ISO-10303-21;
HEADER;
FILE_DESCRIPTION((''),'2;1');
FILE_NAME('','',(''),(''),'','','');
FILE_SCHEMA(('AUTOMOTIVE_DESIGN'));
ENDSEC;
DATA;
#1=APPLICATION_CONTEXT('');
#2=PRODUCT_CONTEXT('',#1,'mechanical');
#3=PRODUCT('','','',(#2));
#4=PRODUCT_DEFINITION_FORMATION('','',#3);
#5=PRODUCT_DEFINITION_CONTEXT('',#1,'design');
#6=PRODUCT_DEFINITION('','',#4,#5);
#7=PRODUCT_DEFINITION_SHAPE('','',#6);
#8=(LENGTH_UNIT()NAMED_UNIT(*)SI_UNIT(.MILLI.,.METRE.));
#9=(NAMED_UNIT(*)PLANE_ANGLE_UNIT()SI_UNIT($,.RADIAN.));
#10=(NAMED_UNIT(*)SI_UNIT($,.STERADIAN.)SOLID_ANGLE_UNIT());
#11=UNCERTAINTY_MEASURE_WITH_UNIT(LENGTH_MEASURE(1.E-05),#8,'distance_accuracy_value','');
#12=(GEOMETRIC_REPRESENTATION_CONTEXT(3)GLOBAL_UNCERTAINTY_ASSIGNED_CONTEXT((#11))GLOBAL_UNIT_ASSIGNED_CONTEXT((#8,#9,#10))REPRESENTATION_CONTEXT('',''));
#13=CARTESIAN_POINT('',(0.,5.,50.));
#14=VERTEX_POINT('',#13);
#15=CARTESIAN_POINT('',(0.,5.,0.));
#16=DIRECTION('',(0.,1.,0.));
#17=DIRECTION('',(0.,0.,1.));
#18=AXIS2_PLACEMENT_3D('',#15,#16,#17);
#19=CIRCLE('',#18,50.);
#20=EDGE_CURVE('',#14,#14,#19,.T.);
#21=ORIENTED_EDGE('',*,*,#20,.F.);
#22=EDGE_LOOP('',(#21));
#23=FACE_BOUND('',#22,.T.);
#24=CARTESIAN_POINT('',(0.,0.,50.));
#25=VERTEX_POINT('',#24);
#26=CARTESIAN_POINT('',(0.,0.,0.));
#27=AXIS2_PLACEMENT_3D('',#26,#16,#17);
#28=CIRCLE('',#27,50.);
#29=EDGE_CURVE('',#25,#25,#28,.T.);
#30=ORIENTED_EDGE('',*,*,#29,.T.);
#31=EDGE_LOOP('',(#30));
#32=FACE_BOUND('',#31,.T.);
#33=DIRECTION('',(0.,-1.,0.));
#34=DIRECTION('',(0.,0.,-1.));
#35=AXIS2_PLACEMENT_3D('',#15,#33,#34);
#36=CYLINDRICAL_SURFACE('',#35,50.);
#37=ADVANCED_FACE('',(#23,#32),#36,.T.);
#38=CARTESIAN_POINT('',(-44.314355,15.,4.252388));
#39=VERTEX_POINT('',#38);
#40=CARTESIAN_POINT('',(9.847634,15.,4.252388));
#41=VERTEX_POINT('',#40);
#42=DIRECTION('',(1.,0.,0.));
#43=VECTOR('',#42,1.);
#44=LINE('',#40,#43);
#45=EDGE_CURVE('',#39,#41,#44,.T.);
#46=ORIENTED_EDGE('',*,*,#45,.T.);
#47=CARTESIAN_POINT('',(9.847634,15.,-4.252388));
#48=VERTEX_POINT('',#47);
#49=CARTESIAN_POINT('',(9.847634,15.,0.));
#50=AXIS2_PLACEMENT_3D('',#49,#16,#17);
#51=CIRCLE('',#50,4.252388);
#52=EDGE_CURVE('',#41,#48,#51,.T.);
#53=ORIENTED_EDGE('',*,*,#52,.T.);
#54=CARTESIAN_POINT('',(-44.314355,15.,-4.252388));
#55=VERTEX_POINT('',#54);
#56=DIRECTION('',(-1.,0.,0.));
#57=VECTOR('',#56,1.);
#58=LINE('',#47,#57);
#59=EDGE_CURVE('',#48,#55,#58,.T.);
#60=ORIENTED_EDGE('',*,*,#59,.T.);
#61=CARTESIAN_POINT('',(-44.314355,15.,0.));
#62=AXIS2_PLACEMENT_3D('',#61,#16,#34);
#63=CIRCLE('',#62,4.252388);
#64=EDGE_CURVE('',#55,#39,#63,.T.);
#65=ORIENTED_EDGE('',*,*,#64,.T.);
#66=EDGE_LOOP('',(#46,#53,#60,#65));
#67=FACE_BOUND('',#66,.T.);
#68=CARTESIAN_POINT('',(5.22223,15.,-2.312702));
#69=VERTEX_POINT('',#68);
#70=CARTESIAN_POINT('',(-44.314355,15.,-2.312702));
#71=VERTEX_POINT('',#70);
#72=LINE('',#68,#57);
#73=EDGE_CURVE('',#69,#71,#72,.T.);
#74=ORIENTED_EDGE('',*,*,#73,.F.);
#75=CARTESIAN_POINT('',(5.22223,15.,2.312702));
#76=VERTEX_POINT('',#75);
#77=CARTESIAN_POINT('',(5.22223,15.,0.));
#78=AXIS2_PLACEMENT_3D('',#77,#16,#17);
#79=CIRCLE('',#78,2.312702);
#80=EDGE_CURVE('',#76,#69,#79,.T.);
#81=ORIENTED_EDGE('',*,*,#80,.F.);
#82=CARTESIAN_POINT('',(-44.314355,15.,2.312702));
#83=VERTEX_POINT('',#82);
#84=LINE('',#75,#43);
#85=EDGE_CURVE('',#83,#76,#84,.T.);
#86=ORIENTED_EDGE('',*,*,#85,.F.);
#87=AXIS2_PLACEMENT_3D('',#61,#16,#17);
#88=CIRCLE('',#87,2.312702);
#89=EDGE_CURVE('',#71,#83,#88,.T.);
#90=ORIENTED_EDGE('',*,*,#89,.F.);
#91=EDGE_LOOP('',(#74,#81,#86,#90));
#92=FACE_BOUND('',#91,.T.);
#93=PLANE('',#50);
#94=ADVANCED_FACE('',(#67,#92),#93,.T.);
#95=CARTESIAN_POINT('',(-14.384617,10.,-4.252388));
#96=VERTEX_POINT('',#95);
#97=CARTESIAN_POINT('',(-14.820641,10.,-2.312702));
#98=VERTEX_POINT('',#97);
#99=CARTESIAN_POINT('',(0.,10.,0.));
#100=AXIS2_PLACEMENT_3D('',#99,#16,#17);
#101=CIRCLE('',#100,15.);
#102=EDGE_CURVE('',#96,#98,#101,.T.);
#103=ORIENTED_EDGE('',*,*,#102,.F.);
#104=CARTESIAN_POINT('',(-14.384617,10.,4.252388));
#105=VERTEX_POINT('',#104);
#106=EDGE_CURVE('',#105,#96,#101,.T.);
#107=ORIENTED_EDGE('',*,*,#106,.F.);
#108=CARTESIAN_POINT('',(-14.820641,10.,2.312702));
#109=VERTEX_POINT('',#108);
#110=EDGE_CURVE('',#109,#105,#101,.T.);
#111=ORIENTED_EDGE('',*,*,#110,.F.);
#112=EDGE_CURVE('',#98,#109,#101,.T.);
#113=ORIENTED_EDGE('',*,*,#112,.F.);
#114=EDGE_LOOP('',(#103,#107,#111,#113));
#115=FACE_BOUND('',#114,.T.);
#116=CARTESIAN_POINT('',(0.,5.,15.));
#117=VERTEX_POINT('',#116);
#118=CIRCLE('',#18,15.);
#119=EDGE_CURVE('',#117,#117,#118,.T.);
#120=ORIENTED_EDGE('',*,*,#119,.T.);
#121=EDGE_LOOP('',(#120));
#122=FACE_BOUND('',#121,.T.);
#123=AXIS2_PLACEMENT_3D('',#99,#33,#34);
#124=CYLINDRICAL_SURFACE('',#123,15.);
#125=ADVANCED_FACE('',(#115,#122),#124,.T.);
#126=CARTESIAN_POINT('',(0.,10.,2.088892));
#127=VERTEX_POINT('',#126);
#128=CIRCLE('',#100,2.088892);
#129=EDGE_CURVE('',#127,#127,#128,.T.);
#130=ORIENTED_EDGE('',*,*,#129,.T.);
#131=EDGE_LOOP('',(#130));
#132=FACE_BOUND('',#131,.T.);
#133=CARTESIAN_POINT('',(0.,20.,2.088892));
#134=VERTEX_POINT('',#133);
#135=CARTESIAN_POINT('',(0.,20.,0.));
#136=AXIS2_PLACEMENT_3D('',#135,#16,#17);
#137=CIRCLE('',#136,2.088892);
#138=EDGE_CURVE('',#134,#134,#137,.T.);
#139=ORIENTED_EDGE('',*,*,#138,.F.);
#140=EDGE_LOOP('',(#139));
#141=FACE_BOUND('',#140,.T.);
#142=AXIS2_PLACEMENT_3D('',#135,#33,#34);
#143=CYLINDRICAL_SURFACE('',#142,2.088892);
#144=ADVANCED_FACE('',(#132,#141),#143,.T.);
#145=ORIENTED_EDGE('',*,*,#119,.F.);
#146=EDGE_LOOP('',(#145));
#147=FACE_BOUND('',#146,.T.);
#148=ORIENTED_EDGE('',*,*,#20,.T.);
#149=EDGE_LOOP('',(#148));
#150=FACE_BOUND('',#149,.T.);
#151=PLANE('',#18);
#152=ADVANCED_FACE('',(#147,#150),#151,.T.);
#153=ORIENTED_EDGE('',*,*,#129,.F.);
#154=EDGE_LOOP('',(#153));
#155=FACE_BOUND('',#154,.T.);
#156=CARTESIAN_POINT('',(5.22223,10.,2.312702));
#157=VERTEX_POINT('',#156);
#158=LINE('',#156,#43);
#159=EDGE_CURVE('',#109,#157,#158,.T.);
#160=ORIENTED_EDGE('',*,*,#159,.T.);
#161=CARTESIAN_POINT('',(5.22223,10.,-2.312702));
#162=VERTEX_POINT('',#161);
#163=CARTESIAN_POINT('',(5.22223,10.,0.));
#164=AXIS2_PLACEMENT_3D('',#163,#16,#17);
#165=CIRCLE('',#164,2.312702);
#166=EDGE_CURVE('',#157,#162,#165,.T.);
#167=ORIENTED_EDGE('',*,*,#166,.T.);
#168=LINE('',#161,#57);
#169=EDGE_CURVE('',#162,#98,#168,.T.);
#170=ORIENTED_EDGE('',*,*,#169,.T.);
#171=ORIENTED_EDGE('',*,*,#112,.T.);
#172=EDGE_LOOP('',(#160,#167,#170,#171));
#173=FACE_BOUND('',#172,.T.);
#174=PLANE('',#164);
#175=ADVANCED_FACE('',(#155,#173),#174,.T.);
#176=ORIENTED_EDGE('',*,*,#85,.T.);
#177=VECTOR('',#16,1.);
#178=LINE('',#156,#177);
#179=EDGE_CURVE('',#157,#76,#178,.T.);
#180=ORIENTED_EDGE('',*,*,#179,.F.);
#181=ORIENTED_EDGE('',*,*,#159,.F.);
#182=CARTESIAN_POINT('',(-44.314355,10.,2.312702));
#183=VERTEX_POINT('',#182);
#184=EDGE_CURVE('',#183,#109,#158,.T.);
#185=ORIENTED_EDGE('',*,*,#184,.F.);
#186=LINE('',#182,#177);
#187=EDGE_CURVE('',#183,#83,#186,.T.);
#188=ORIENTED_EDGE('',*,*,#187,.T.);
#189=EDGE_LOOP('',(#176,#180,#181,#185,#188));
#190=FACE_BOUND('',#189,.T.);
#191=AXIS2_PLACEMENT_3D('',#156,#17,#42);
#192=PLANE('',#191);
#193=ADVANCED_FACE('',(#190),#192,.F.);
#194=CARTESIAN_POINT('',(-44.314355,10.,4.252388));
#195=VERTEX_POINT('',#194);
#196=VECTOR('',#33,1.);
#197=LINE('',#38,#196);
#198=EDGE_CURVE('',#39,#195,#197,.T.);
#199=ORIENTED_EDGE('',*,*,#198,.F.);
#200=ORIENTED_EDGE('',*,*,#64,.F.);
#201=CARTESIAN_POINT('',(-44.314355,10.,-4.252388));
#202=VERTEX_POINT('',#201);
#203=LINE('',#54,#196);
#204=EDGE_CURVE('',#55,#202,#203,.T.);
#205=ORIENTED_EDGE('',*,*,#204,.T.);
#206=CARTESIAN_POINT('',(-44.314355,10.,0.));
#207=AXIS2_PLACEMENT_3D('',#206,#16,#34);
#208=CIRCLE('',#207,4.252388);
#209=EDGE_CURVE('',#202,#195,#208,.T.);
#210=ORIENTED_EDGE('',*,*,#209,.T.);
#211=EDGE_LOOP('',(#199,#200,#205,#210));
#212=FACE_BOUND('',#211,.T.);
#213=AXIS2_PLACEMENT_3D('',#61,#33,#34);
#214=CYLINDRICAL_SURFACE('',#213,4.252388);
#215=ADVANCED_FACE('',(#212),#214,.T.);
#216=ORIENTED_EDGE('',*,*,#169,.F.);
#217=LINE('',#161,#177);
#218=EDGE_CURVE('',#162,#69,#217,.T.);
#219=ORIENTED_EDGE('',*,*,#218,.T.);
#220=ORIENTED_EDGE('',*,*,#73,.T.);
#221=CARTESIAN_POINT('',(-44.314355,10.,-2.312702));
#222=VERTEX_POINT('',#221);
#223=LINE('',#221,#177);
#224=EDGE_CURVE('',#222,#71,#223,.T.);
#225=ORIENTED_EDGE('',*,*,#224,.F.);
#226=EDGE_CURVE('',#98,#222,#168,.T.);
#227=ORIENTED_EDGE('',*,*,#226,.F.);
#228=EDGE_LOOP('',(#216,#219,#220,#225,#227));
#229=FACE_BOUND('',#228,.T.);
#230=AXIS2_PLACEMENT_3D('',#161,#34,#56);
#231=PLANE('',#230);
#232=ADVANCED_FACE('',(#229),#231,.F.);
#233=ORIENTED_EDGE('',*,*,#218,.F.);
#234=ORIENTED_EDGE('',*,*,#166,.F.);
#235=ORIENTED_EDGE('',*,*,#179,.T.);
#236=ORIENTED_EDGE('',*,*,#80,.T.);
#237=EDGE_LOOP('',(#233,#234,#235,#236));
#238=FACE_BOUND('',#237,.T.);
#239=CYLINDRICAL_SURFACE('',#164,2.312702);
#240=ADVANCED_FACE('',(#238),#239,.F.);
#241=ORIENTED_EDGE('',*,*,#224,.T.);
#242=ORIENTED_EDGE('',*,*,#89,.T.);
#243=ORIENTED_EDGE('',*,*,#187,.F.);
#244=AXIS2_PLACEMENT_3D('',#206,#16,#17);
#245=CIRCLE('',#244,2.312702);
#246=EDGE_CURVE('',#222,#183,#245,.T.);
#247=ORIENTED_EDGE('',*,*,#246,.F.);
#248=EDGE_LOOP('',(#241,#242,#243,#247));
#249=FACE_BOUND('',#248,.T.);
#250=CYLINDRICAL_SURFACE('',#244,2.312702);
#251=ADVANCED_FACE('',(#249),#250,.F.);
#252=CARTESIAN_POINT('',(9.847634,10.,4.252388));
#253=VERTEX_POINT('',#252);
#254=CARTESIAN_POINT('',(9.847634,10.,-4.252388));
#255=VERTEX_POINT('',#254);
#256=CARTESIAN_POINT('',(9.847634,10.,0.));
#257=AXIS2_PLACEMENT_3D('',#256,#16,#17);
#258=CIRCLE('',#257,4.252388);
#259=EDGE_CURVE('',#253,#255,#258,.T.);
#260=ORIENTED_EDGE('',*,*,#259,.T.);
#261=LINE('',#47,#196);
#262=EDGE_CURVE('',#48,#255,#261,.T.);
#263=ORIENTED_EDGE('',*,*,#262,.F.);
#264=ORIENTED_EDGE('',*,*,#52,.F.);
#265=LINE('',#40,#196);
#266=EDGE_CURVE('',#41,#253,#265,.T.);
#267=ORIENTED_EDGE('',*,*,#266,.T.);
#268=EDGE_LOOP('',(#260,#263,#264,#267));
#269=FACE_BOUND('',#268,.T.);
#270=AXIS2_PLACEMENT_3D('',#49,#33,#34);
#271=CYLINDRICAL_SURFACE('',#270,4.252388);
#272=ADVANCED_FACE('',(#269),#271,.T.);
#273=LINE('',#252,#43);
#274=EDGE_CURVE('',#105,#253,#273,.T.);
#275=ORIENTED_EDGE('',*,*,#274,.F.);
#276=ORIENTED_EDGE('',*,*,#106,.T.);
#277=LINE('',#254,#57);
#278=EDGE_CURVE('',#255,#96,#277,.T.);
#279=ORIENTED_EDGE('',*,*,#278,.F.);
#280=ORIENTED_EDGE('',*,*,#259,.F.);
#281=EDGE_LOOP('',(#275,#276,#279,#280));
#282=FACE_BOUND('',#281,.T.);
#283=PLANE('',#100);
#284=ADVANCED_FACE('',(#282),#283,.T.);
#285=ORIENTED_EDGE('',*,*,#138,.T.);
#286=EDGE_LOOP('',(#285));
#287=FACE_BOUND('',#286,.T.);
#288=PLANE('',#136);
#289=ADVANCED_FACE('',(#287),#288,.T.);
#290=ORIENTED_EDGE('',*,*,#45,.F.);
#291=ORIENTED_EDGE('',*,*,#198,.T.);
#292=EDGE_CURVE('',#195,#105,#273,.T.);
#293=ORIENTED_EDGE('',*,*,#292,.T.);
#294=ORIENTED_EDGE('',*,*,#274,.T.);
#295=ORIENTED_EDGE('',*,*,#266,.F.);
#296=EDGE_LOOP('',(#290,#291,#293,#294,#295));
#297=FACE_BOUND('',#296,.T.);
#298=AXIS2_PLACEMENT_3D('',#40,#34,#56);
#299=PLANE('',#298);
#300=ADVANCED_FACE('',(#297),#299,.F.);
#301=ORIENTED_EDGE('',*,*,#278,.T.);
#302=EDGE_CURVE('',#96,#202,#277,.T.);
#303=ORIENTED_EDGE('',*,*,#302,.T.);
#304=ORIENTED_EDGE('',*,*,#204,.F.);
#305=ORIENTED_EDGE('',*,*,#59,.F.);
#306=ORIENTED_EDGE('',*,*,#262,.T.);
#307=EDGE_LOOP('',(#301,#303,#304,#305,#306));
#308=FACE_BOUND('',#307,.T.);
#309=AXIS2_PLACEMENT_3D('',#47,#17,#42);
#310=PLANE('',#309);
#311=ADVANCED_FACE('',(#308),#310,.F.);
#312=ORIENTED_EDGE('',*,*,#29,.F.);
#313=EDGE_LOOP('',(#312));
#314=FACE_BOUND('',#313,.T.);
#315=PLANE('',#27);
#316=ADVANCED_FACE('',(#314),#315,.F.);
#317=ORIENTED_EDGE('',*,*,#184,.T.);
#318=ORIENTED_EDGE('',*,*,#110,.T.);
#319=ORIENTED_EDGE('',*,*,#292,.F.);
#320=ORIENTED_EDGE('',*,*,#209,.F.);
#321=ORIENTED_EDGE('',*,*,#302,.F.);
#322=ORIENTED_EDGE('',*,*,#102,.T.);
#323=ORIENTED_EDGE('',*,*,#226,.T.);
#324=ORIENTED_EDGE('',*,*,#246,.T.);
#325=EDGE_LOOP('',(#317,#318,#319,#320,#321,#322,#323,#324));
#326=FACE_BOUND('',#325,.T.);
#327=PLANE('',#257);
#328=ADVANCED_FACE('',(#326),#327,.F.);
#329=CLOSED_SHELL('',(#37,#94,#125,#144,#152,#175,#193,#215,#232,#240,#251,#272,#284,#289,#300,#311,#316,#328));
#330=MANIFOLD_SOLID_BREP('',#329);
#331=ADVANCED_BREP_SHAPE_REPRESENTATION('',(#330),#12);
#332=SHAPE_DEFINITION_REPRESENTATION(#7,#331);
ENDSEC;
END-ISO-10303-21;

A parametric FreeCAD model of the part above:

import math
import FreeCAD as App
import Part
import Sketcher
from FreeCAD import Vector
Q = App.Units.Quantity

doc = App.newDocument("Part")
params = doc.addObject("Spreadsheet::Sheet", "Params")
for row, (alias, value) in enumerate([
    ("sketch1_diameter", "100 mm"),
    ("pad1_length", "5 mm"),
    ("sketch2_diameter", "30 mm"),
    ("pad2_length", "5 mm"),
    ("pad3_length", "5 mm"),
    ("pocket1_length", "5 mm"),
    ("pad4_length", "10 mm"),
], start=1):
    params.set(f"A{row}", alias)
    params.set(f"B{row}", "=" + value)
    params.setAlias(f"B{row}", alias)

body = doc.addObject("PartDesign::Body", "Body")

# Sketch on XZ plane
sketch1 = body.newObject("Sketcher::SketchObject", "Sketch")
sketch1.AttachmentSupport = (doc.getObject("XZ_Plane"), [""])
sketch1.MapMode = "FlatFace"
sketch1.addGeometry(Part.Circle(Vector(0, 0, 0), Vector(0, 0, 1), 50), False)
sketch1.addConstraint(Sketcher.Constraint("Coincident", 0, 3, -1, 1))
sketch1.addConstraint(Sketcher.Constraint("Diameter", 0, Q("100 mm")))
sketch1.setExpression("Constraints[1]", "Params.sketch1_diameter")
pad1 = body.newObject("PartDesign::Pad", "Pad")
pad1.Profile = sketch1
pad1.setExpression("Length", "Params.pad1_length")
pad1.Reversed = True

# Sketch on XZ plane
sketch2 = body.newObject("Sketcher::SketchObject", "Sketch001")
sketch2.AttachmentSupport = (doc.getObject("XZ_Plane"), [""])
sketch2.MapMode = "FlatFace"
sketch2.AttachmentOffset = App.Placement(Vector(0, 0, -5), App.Rotation())
sketch2.addGeometry(Part.Circle(Vector(0, 0, 0), Vector(0, 0, 1), 15), False)
sketch2.addConstraint(Sketcher.Constraint("Coincident", 0, 3, -1, 1))
sketch2.addConstraint(Sketcher.Constraint("Diameter", 0, Q("30 mm")))
sketch2.setExpression("Constraints[1]", "Params.sketch2_diameter")
pad2 = body.newObject("PartDesign::Pad", "Pad001")
pad2.Profile = sketch2
pad2.setExpression("Length", "Params.pad2_length")
pad2.Reversed = True

# Sketch on XZ plane
sketch3 = body.newObject("Sketcher::SketchObject", "Sketch002")
sketch3.AttachmentSupport = (doc.getObject("XZ_Plane"), [""])
sketch3.MapMode = "FlatFace"
sketch3.AttachmentOffset = App.Placement(Vector(0, 0, -10), App.Rotation())
sketch3.addGeometry(Part.LineSegment(Vector(-44.314355, 4.252388, 0), Vector(9.847634, 4.252388, 0)), False)
sketch3.addGeometry(Part.ArcOfCircle(Part.Circle(Vector(9.847634, 0, 0), Vector(0, 0, 1), 4.252388), math.radians(-90), math.radians(90)), False)
sketch3.addGeometry(Part.LineSegment(Vector(9.847634, -4.252388, 0), Vector(-44.314355, -4.252388, 0)), False)
sketch3.addGeometry(Part.ArcOfCircle(Part.Circle(Vector(-44.314355, 0, 0), Vector(0, 0, 1), 4.252388), math.radians(90), math.radians(270)), False)
sketch3.addConstraint(Sketcher.Constraint("Tangent", 0, 2, 1, 2))
sketch3.addConstraint(Sketcher.Constraint("Tangent", 1, 1, 2, 1))
sketch3.addConstraint(Sketcher.Constraint("Tangent", 2, 2, 3, 2))
sketch3.addConstraint(Sketcher.Constraint("Tangent", 3, 1, 0, 1))
sketch3.addConstraint(Sketcher.Constraint("Horizontal", 0))
sketch3.addConstraint(Sketcher.Constraint("Horizontal", 2))
sketch3.addConstraint(Sketcher.Constraint("PointOnObject", 1, 3, -1))
sketch3.addConstraint(Sketcher.Constraint("Radius", 1, Q("4.252388 mm")))
sketch3.addConstraint(Sketcher.Constraint("DistanceX", 0, 1, 0, 2, Q("54.161989 mm")))
sketch3.addConstraint(Sketcher.Constraint("DistanceX", -1, 1, 1, 3, Q("9.847634 mm")))
pad3 = body.newObject("PartDesign::Pad", "Pad002")
pad3.Profile = sketch3
pad3.setExpression("Length", "Params.pad3_length")
pad3.Reversed = True

# Sketch on XZ plane
sketch4 = body.newObject("Sketcher::SketchObject", "Sketch003")
sketch4.AttachmentSupport = (doc.getObject("XZ_Plane"), [""])
sketch4.MapMode = "FlatFace"
sketch4.AttachmentOffset = App.Placement(Vector(0, 0, -15), App.Rotation())
sketch4.addGeometry(Part.LineSegment(Vector(-44.314355, 2.312702, 0), Vector(5.22223, 2.312702, 0)), False)
sketch4.addGeometry(Part.ArcOfCircle(Part.Circle(Vector(5.22223, 0, 0), Vector(0, 0, 1), 2.312702), math.radians(-90), math.radians(90)), False)
sketch4.addGeometry(Part.LineSegment(Vector(5.22223, -2.312702, 0), Vector(-44.314355, -2.312702, 0)), False)
sketch4.addGeometry(Part.ArcOfCircle(Part.Circle(Vector(-44.314355, 0, 0), Vector(0, 0, 1), 2.312702), math.radians(90), math.radians(270)), False)
sketch4.addConstraint(Sketcher.Constraint("Tangent", 0, 2, 1, 2))
sketch4.addConstraint(Sketcher.Constraint("Tangent", 1, 1, 2, 1))
sketch4.addConstraint(Sketcher.Constraint("Tangent", 2, 2, 3, 2))
sketch4.addConstraint(Sketcher.Constraint("Tangent", 3, 1, 0, 1))
sketch4.addConstraint(Sketcher.Constraint("Horizontal", 0))
sketch4.addConstraint(Sketcher.Constraint("Horizontal", 2))
sketch4.addConstraint(Sketcher.Constraint("PointOnObject", 1, 3, -1))
sketch4.addConstraint(Sketcher.Constraint("Radius", 1, Q("2.312702 mm")))
sketch4.addConstraint(Sketcher.Constraint("DistanceX", 0, 1, 0, 2, Q("49.536585 mm")))
sketch4.addConstraint(Sketcher.Constraint("DistanceX", -1, 1, 1, 3, Q("5.22223 mm")))
pocket1 = body.newObject("PartDesign::Pocket", "Pocket")
pocket1.Profile = sketch4
pocket1.setExpression("Length", "Params.pocket1_length")
pocket1.Reversed = True

# Sketch on XZ plane
sketch5 = body.newObject("Sketcher::SketchObject", "Sketch004")
sketch5.AttachmentSupport = (doc.getObject("XZ_Plane"), [""])
sketch5.MapMode = "FlatFace"
sketch5.AttachmentOffset = App.Placement(Vector(0, 0, -10), App.Rotation())
sketch5.addGeometry(Part.Circle(Vector(0, 0, 0), Vector(0, 0, 1), 2.088892), False)
sketch5.addConstraint(Sketcher.Constraint("Coincident", 0, 3, -1, 1))
sketch5.addConstraint(Sketcher.Constraint("Diameter", 0, Q("4.177784 mm")))
pad4 = body.newObject("PartDesign::Pad", "Pad003")
pad4.Profile = sketch5
pad4.setExpression("Length", "Params.pad4_length")
pad4.Reversed = True

doc.recompute()
